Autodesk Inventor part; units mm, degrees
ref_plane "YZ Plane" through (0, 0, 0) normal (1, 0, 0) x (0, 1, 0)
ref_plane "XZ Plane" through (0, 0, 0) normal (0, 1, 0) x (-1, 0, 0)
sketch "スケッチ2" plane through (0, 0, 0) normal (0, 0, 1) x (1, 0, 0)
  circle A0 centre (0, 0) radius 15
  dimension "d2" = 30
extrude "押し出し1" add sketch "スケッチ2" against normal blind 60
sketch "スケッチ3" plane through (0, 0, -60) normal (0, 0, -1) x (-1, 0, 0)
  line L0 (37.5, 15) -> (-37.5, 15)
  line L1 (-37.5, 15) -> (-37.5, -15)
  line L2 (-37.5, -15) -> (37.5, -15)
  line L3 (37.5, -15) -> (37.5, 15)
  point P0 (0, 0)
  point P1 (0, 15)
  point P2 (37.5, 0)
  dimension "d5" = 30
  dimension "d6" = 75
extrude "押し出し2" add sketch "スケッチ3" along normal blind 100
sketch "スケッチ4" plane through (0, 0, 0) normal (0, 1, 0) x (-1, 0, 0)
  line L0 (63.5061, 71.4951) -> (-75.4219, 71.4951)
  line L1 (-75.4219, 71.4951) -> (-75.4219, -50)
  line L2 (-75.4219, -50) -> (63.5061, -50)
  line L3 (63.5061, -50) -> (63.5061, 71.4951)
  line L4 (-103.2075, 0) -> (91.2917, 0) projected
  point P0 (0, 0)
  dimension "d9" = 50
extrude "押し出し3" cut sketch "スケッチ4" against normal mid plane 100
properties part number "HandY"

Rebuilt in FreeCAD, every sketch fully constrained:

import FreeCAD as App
import Part
import Sketcher

V = App.Vector
Q = App.Units.Quantity

doc = App.newDocument("Part")
body = doc.addObject("PartDesign::Body", "Body")

sketch1 = body.newObject("Sketcher::SketchObject", "Sketch")
sketch1.AttachmentSupport = (doc.getObject("XY_Plane"), [""])
sketch1.MapMode = "FlatFace"
sketch1.addGeometry(Part.Circle(V(0, 0, 0), V(0, 0, 1), 15), False)
sketch1.addConstraint(Sketcher.Constraint("Coincident", 0, 3, -1, 1))
sketch1.addConstraint(Sketcher.Constraint("Diameter", 0, Q("30 mm")))
pad1 = body.newObject("PartDesign::Pad", "Pad")
pad1.Profile = sketch1
pad1.Length = 60
pad1.Reversed = True

sketch2 = body.newObject("Sketcher::SketchObject", "Sketch001")
sketch2.AttachmentSupport = (doc.getObject("XY_Plane"), [""])
sketch2.MapMode = "FlatFace"
sketch2.AttachmentOffset = App.Placement(V(0, 0, -60), App.Rotation())
sketch2.addGeometry(Part.LineSegment(V(-38, -15, 0), V(-38, 15, 0)), False)
sketch2.addGeometry(Part.LineSegment(V(-38, 15, 0), V(38, 15, 0)), False)
sketch2.addGeometry(Part.LineSegment(V(38, 15, 0), V(38, -15, 0)), False)
sketch2.addGeometry(Part.LineSegment(V(38, -15, 0), V(-38, -15, 0)), False)
sketch2.addConstraint(Sketcher.Constraint("Coincident", 0, 2, 1, 1))
sketch2.addConstraint(Sketcher.Constraint("Coincident", 1, 2, 2, 1))
sketch2.addConstraint(Sketcher.Constraint("Coincident", 2, 2, 3, 1))
sketch2.addConstraint(Sketcher.Constraint("Coincident", 3, 2, 0, 1))
sketch2.addConstraint(Sketcher.Constraint("Vertical", 0))
sketch2.addConstraint(Sketcher.Constraint("Horizontal", 1))
sketch2.addConstraint(Sketcher.Constraint("Vertical", 2))
sketch2.addConstraint(Sketcher.Constraint("Horizontal", 3))
sketch2.addConstraint(Sketcher.Constraint("Symmetric", 0, 2, 2, 2, -1, 1))
sketch2.addConstraint(Sketcher.Constraint("DistanceX", 1, 1, 1, 2, Q("75 mm")))
sketch2.addConstraint(Sketcher.Constraint("DistanceY", 0, 1, 0, 2, Q("30 mm")))
pad2 = body.newObject("PartDesign::Pad", "Pad001")
pad2.Profile = sketch2
pad2.Length = 100
pad2.Reversed = True

sketch3 = body.newObject("Sketcher::SketchObject", "Sketch002")
sketch3.AttachmentSupport = (doc.getObject("XZ_Plane"), [""])
sketch3.MapMode = "FlatFace"
sketch3.addGeometry(Part.LineSegment(V(-64, 71, 0), V(75, 71, 0)), False)
sketch3.addGeometry(Part.LineSegment(V(75, 71, 0), V(75, -50, 0)), False)
sketch3.addGeometry(Part.LineSegment(V(75, -50, 0), V(-64, -50, 0)), False)
sketch3.addGeometry(Part.LineSegment(V(-64, -50, 0), V(-64, 71, 0)), False)
sketch3.addConstraint(Sketcher.Constraint("Coincident", 0, 2, 1, 1))
sketch3.addConstraint(Sketcher.Constraint("Coincident", 1, 2, 2, 1))
sketch3.addConstraint(Sketcher.Constraint("Coincident", 2, 2, 3, 1))
sketch3.addConstraint(Sketcher.Constraint("Coincident", 3, 2, 0, 1))
sketch3.addConstraint(Sketcher.Constraint("Horizontal", 0))
sketch3.addConstraint(Sketcher.Constraint("Vertical", 1))
sketch3.addConstraint(Sketcher.Constraint("Horizontal", 2))
sketch3.addConstraint(Sketcher.Constraint("Vertical", 3))
sketch3.addConstraint(Sketcher.Constraint("DistanceY", 1, 2, -1, 1, Q("50 mm")))
sketch3.addConstraint(Sketcher.Constraint("DistanceX", 0, 1, 0, 2, Q("138.928 mm")))
sketch3.addConstraint(Sketcher.Constraint("DistanceY", 1, 2, 1, 1, Q("121.495 mm")))
sketch3.addConstraint(Sketcher.Constraint("DistanceX", -1, 1, 0, 2, Q("75.422 mm")))
pocket1 = body.newObject("PartDesign::Pocket", "Pocket")
pocket1.Profile = sketch3
pocket1.Length = 100
pocket1.Midplane = True

doc.recompute()
